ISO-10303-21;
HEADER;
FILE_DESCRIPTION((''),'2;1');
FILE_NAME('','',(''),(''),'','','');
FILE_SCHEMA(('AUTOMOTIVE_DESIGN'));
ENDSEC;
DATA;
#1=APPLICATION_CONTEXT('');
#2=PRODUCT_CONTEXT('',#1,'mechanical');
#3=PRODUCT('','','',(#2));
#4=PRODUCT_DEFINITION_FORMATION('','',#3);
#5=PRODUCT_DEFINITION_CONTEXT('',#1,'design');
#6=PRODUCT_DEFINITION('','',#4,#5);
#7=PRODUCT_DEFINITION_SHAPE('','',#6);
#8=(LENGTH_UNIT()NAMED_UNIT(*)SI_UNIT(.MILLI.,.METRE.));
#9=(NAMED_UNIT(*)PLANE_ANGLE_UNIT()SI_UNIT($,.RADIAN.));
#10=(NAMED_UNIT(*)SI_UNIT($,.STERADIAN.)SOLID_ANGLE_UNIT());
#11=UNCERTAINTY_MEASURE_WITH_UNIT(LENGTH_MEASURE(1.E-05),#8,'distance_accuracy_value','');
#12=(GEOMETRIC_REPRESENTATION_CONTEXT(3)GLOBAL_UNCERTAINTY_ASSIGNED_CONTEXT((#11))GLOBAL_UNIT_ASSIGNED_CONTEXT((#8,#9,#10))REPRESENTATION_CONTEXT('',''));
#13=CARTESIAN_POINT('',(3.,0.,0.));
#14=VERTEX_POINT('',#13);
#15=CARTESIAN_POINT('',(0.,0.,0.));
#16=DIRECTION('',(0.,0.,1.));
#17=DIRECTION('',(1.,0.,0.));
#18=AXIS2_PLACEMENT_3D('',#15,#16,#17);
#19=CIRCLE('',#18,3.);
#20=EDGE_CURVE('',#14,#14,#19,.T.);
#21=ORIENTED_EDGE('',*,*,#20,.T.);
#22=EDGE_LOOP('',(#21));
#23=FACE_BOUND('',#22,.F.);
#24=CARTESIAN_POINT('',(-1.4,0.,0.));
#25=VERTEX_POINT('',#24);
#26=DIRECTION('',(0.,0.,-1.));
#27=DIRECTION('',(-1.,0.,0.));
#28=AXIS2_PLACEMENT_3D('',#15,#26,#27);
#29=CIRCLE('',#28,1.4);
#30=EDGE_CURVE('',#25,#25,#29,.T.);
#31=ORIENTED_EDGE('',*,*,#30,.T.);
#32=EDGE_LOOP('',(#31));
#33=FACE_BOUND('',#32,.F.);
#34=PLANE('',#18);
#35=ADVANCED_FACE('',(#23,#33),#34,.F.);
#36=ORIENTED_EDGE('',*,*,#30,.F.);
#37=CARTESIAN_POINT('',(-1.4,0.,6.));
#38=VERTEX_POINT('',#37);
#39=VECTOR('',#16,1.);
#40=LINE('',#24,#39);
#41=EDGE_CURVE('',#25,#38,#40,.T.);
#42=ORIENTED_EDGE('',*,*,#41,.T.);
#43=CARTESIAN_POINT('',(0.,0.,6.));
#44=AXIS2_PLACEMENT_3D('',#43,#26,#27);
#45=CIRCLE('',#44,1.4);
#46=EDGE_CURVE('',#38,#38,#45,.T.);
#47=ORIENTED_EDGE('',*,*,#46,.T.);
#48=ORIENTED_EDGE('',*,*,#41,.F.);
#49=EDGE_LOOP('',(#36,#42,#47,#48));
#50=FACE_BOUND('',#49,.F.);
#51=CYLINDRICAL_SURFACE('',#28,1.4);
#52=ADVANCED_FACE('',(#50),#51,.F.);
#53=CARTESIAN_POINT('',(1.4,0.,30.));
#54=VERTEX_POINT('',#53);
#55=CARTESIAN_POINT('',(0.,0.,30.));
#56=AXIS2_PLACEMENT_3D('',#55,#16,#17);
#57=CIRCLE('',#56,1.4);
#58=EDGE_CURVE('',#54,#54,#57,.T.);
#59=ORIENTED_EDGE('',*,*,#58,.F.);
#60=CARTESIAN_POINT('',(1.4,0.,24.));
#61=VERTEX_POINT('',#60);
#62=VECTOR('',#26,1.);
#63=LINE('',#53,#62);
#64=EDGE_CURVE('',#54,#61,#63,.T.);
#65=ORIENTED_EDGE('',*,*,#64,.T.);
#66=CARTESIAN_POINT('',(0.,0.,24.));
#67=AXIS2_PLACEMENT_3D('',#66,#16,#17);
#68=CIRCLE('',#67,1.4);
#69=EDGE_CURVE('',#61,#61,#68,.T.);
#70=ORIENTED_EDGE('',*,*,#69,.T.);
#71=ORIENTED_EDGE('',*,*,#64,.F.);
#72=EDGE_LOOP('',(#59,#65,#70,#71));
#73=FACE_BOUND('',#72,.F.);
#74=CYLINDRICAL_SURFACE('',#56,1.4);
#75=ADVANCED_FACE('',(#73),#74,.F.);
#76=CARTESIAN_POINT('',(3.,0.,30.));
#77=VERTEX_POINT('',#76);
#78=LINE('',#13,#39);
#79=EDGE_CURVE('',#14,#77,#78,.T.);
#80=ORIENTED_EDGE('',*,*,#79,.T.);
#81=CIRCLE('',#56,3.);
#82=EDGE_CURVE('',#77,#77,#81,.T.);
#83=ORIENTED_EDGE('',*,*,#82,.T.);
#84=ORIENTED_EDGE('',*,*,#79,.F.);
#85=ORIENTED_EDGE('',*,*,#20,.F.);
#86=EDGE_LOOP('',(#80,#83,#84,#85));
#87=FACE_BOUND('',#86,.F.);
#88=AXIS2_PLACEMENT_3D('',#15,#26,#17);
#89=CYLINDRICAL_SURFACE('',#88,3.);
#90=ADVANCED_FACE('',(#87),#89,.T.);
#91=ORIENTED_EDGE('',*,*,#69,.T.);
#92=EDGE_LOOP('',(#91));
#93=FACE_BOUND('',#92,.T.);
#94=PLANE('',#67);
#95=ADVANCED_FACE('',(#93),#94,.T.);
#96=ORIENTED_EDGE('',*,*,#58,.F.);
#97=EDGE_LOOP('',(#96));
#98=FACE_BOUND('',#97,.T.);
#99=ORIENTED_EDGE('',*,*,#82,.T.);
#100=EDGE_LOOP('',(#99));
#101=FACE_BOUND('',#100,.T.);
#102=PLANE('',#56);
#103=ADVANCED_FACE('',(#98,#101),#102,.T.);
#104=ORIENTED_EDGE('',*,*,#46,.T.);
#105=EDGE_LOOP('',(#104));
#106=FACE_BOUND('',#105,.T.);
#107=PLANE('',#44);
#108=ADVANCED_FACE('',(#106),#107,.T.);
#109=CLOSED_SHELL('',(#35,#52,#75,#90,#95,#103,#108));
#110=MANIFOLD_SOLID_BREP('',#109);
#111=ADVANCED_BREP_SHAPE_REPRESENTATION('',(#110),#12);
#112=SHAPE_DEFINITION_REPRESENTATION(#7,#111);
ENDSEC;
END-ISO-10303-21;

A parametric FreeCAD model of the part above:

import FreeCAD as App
import Part
import Sketcher

doc = App.newDocument("Part")
body = doc.addObject("PartDesign::Body", "Body")

# Sketch on XY plane
sketch1 = body.newObject("Sketcher::SketchObject", "Sketch")
sketch1.AttachmentSupport = (doc.getObject("XY_Plane"), [""])
sketch1.MapMode = "FlatFace"
sketch1.addGeometry(Part.Circle(App.Vector(0, 0, 0), App.Vector(0, 0, 1), 3), False)
sketch1.addConstraint(Sketcher.Constraint("Coincident", 0, 3, -1, 1))
sketch1.addConstraint(Sketcher.Constraint("Diameter", 0, 6.0))
pad1 = body.newObject("PartDesign::Pad", "Pad")
pad1.Profile = sketch1
pad1.Length = 30

# Sketch on XY plane
sketch2 = body.newObject("Sketcher::SketchObject", "Sketch001")
sketch2.AttachmentSupport = (doc.getObject("XY_Plane"), [""])
sketch2.MapMode = "FlatFace"
sketch2.AttachmentOffset = App.Placement(App.Vector(0, 0, 30), App.Rotation())
sketch2.addGeometry(Part.Circle(App.Vector(0, 0, 0), App.Vector(0, 0, 1), 1.4), False)
sketch2.addConstraint(Sketcher.Constraint("Coincident", 0, 3, -1, 1))
sketch2.addConstraint(Sketcher.Constraint("Diameter", 0, 2.8))
pocket1 = body.newObject("PartDesign::Pocket", "Pocket")
pocket1.Profile = sketch2
pocket1.Length = 6

# Sketch on XY plane
sketch3 = body.newObject("Sketcher::SketchObject", "Sketch002")
sketch3.AttachmentSupport = (doc.getObject("XY_Plane"), [""])
sketch3.MapMode = "FlatFace"
sketch3.addGeometry(Part.Circle(App.Vector(0, 0, 0), App.Vector(0, 0, 1), 1.4), False)
sketch3.addConstraint(Sketcher.Constraint("Coincident", 0, 3, -1, 1))
sketch3.addConstraint(Sketcher.Constraint("Diameter", 0, 2.8))
pocket2 = body.newObject("PartDesign::Pocket", "Pocket001")
pocket2.Profile = sketch3
pocket2.Length = 6
pocket2.Reversed = True

doc.recompute()
